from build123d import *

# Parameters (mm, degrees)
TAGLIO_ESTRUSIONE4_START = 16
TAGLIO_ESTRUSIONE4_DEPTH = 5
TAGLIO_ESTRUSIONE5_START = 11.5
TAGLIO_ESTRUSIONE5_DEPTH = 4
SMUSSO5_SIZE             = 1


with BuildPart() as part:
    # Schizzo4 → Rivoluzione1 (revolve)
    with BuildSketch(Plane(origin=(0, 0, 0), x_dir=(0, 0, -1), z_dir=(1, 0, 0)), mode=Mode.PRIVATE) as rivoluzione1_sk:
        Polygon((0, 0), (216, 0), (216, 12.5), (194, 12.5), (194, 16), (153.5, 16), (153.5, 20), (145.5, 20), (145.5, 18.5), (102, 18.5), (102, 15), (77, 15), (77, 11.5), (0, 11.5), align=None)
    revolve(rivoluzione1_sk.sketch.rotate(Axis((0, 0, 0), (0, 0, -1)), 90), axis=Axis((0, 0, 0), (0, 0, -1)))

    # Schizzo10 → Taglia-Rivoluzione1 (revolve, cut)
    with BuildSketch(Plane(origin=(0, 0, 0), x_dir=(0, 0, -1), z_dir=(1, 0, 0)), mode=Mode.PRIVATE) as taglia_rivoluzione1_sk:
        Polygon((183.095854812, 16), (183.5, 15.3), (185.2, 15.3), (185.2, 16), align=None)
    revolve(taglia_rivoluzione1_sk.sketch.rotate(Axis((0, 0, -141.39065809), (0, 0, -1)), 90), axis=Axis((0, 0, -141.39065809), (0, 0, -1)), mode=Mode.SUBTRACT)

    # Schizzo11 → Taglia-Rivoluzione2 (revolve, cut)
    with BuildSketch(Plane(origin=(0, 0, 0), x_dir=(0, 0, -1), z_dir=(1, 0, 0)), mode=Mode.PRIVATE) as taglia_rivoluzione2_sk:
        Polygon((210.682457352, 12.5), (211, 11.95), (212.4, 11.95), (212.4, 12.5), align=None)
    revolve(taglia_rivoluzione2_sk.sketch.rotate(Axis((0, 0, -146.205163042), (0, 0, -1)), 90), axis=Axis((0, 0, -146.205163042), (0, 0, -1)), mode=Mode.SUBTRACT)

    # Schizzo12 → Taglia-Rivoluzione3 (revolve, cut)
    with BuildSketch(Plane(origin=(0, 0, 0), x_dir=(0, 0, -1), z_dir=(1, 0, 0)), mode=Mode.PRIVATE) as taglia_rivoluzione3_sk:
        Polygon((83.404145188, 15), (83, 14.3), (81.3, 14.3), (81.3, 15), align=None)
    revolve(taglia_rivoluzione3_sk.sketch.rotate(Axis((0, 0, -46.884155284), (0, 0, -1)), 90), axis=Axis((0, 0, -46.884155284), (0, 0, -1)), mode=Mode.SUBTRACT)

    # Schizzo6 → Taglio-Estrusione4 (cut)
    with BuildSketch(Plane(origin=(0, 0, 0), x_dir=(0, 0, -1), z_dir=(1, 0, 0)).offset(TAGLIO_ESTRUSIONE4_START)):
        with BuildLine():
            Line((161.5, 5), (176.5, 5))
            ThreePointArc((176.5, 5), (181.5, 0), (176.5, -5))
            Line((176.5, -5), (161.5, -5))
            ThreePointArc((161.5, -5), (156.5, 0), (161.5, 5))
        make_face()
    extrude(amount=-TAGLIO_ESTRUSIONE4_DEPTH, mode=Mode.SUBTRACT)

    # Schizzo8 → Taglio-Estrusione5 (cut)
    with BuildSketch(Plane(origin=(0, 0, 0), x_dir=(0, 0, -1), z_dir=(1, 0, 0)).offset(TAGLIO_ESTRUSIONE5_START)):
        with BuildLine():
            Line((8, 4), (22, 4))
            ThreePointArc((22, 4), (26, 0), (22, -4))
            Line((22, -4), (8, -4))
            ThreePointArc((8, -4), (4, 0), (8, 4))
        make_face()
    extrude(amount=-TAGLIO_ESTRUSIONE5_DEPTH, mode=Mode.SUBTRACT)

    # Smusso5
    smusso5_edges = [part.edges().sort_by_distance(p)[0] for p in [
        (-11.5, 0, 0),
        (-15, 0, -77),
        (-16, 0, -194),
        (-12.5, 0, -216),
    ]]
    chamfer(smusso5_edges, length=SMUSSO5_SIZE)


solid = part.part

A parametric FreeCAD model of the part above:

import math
import FreeCAD as App
import Part
import Sketcher
Q = App.Units.Quantity


def edges_at(feature, points):
    """Names of the edges that pass closest to the given points."""
    edges = feature.Shape.Edges
    near = lambda p: min(range(len(edges)), key=lambda i: edges[i].distToShape(Part.Vertex(*p))[0])
    return sorted({f"Edge{near(p) + 1}" for p in points})


def add_polygon(sketch, points):
    """Adds a closed chain of lines whose ends are joined by coincident constraints."""
    first, n = sketch.GeometryCount, len(points)
    for a, b in zip(points, points[1:] + points[:1]):
        sketch.addGeometry(Part.LineSegment(App.Vector(*a, 0), App.Vector(*b, 0)), False)
    for i in range(n):
        sketch.addConstraint(Sketcher.Constraint("Coincident", first + i, 2, first + (i + 1) % n, 1))

doc = App.newDocument("Part")
body = doc.addObject("PartDesign::Body", "Body")

sketch1 = body.newObject("Sketcher::SketchObject", "Sketch")
sketch1.AttachmentSupport = (doc.getObject("YZ_Plane"), [""])
sketch1.MapMode = "FlatFace"
add_polygon(sketch1, [(0, 0), (0, -216), (12.5, -216), (12.5, -194), (16, -194), (16, -153.5), (20, -153.5), (20, -145.5), (18.5, -145.5), (18.5, -102), (15, -102), (15, -77), (11.5, -77), (11.5, 0)])
sketch1.addConstraint([
    Sketcher.Constraint("Vertical", 0),
    Sketcher.Constraint("Horizontal", 1),
    Sketcher.Constraint("Vertical", 2),
    Sketcher.Constraint("Horizontal", 3),
    Sketcher.Constraint("Vertical", 4),
    Sketcher.Constraint("Horizontal", 5),
    Sketcher.Constraint("Vertical", 6),
    Sketcher.Constraint("Horizontal", 7),
    Sketcher.Constraint("Vertical", 8),
    Sketcher.Constraint("Horizontal", 9),
    Sketcher.Constraint("Vertical", 10),
    Sketcher.Constraint("Horizontal", 11),
    Sketcher.Constraint("Vertical", 12),
    Sketcher.Constraint("Horizontal", 13),
    Sketcher.Constraint("Coincident", 13, 2, -1, 1),
    Sketcher.Constraint("Equal", 3, 9),
    Sketcher.Constraint("Equal", 9, 11),
    Sketcher.Constraint("DistanceX", 5, 1, 5, 2, Q("4 mm")),
    Sketcher.Constraint("DistanceY", 0, 2, 0, 1, Q("216 mm")),
    Sketcher.Constraint("DistanceY", 2, 1, 2, 2, Q("22 mm")),
    Sketcher.Constraint("DistanceY", 6, 1, 6, 2, Q("8 mm")),
    Sketcher.Constraint("DistanceY", 10, 1, 10, 2, Q("25 mm")),
    Sketcher.Constraint("DistanceY", 12, 1, 12, 2, Q("77 mm")),
    Sketcher.Constraint("DistanceX", 1, 1, 1, 2, Q("12.5 mm")),
    Sketcher.Constraint("DistanceX", 3, 1, 3, 2, Q("3.5 mm")),
    Sketcher.Constraint("DistanceX", 7, 2, 7, 1, Q("1.5 mm")),
    Sketcher.Constraint("DistanceY", 4, 1, 4, 2, Q("40.5 mm")),
])
revolution = body.newObject("PartDesign::Revolution", "Revolution")
revolution.Profile = sketch1
revolution.ReferenceAxis = (sketch1, ["V_Axis"])
revolution.Angle = 360

sketch2 = body.newObject("Sketcher::SketchObject", "Sketch001")
sketch2.AttachmentSupport = (doc.getObject("YZ_Plane"), [""])
sketch2.MapMode = "FlatFace"
add_polygon(sketch2, [(16, -183.1), (15.3, -183.5), (15.3, -185.2), (16, -185.2)])
sketch2.addConstraint([
    Sketcher.Constraint("Vertical", 1),
    Sketcher.Constraint("Horizontal", 2),
    Sketcher.Constraint("Vertical", 3),
    Sketcher.Constraint("Angle", 0, Q("-150 deg")),
    Sketcher.Constraint("DistanceX", 2, 1, 2, 2, Q("0.7 mm")),
    Sketcher.Constraint("DistanceY", 1, 2, 1, 1, Q("1.7 mm")),
    Sketcher.Constraint("DistanceX", -1, 1, 2, 2, Q("16 mm")),
    Sketcher.Constraint("DistanceY", 0, 2, -1, 1, Q("183.5 mm")),
])
groove = body.newObject("PartDesign::Groove", "Groove")
groove.Profile = sketch2
groove.ReferenceAxis = (sketch2, ["V_Axis"])
groove.Angle = 360

sketch3 = body.newObject("Sketcher::SketchObject", "Sketch002")
sketch3.AttachmentSupport = (doc.getObject("YZ_Plane"), [""])
sketch3.MapMode = "FlatFace"
add_polygon(sketch3, [(12.5, -210.7), (11.9, -211), (11.9, -212.4), (12.5, -212.4)])
sketch3.addConstraint([
    Sketcher.Constraint("Vertical", 1),
    Sketcher.Constraint("Horizontal", 2),
    Sketcher.Constraint("Vertical", 3),
    Sketcher.Constraint("Angle", 0, Q("-150 deg")),
    Sketcher.Constraint("DistanceY", 1, 2, 1, 1, Q("1.4 mm")),
    Sketcher.Constraint("DistanceY", 0, 2, -1, 1, Q("211 mm")),
    Sketcher.Constraint("DistanceX", 2, 1, 2, 2, Q("0.55 mm")),
    Sketcher.Constraint("DistanceX", -1, 1, 2, 2, Q("12.5 mm")),
])
groove2 = body.newObject("PartDesign::Groove", "Groove001")
groove2.Profile = sketch3
groove2.ReferenceAxis = (sketch3, ["V_Axis"])
groove2.Angle = 360

sketch4 = body.newObject("Sketcher::SketchObject", "Sketch003")
sketch4.AttachmentSupport = (doc.getObject("YZ_Plane"), [""])
sketch4.MapMode = "FlatFace"
add_polygon(sketch4, [(14.3, -83), (15, -83.4), (15, -81.3), (14.3, -81.3)])
sketch4.addConstraint([
    Sketcher.Constraint("Vertical", 1),
    Sketcher.Constraint("Horizontal", 2),
    Sketcher.Constraint("Vertical", 3),
    Sketcher.Constraint("Angle", 0, Q("-30 deg")),
    Sketcher.Constraint("DistanceX", 2, 2, 2, 1, Q("0.7 mm")),
    Sketcher.Constraint("DistanceY", 3, 2, 3, 1, Q("1.7 mm")),
    Sketcher.Constraint("DistanceX", -1, 1, 0, 2, Q("15 mm")),
    Sketcher.Constraint("DistanceY", 3, 2, -1, 1, Q("83 mm")),
])
groove3 = body.newObject("PartDesign::Groove", "Groove002")
groove3.Profile = sketch4
groove3.ReferenceAxis = (sketch4, ["V_Axis"])
groove3.Angle = 360

sketch5 = body.newObject("Sketcher::SketchObject", "Sketch004")
sketch5.AttachmentSupport = (doc.getObject("YZ_Plane"), [""])
sketch5.MapMode = "FlatFace"
sketch5.AttachmentOffset = App.Placement(App.Vector(0, 0, 16), App.Rotation())
sketch5.addGeometry([
    Part.LineSegment(App.Vector(5, -176, 0), App.Vector(5, -162, 0)),
    Part.ArcOfCircle(Part.Circle(App.Vector(0, -162, 0), App.Vector(0, 0, 1), 5), math.radians(0), math.radians(180)),
    Part.LineSegment(App.Vector(-5, -162, 0), App.Vector(-5, -176, 0)),
    Part.ArcOfCircle(Part.Circle(App.Vector(0, -176, 0), App.Vector(0, 0, 1), 5), math.radians(180), math.radians(360)),
], False)
sketch5.addConstraint([
    Sketcher.Constraint("Tangent", 0, 2, 1, 1),
    Sketcher.Constraint("Tangent", 1, 2, 2, 1),
    Sketcher.Constraint("Tangent", 2, 2, 3, 1),
    Sketcher.Constraint("Tangent", 3, 2, 0, 1),
    Sketcher.Constraint("Vertical", 0),
    Sketcher.Constraint("Vertical", 2),
    Sketcher.Constraint("PointOnObject", 1, 3, -2),
    Sketcher.Constraint("Radius", 1, Q("5 mm")),
    Sketcher.Constraint("DistanceY", 0, 1, 0, 2, Q("15 mm")),
    Sketcher.Constraint("DistanceY", 1, 3, -1, 1, Q("161.5 mm")),
])
pocket1 = body.newObject("PartDesign::Pocket", "Pocket")
pocket1.Profile = sketch5
pocket1.Length = 5

sketch6 = body.newObject("Sketcher::SketchObject", "Sketch005")
sketch6.AttachmentSupport = (doc.getObject("YZ_Plane"), [""])
sketch6.MapMode = "FlatFace"
sketch6.AttachmentOffset = App.Placement(App.Vector(0, 0, 11.5), App.Rotation())
sketch6.addGeometry([
    Part.LineSegment(App.Vector(4, -22, 0), App.Vector(4, -8, 0)),
    Part.ArcOfCircle(Part.Circle(App.Vector(0, -8, 0), App.Vector(0, 0, 1), 4), math.radians(0), math.radians(180)),
    Part.LineSegment(App.Vector(-4, -8, 0), App.Vector(-4, -22, 0)),
    Part.ArcOfCircle(Part.Circle(App.Vector(0, -22, 0), App.Vector(0, 0, 1), 4), math.radians(180), math.radians(360)),
], False)
sketch6.addConstraint([
    Sketcher.Constraint("Tangent", 0, 2, 1, 1),
    Sketcher.Constraint("Tangent", 1, 2, 2, 1),
    Sketcher.Constraint("Tangent", 2, 2, 3, 1),
    Sketcher.Constraint("Tangent", 3, 2, 0, 1),
    Sketcher.Constraint("Vertical", 0),
    Sketcher.Constraint("Vertical", 2),
    Sketcher.Constraint("PointOnObject", 1, 3, -2),
    Sketcher.Constraint("Radius", 1, Q("4 mm")),
    Sketcher.Constraint("DistanceY", 0, 1, 0, 2, Q("14 mm")),
    Sketcher.Constraint("DistanceY", 1, 3, -1, 1, Q("8 mm")),
])
pocket2 = body.newObject("PartDesign::Pocket", "Pocket001")
pocket2.Profile = sketch6
pocket2.Length = 4
doc.recompute()

chamfer = body.newObject("PartDesign::Chamfer", "Chamfer")
chamfer.Base = (pocket2, edges_at(pocket2, [
    (-11.5, 0, 0),
    (-15, 0, -77),
    (-16, 0, -194),
    (-12.5, 0, -216),
]))
chamfer.Size = 1

doc.recompute()
